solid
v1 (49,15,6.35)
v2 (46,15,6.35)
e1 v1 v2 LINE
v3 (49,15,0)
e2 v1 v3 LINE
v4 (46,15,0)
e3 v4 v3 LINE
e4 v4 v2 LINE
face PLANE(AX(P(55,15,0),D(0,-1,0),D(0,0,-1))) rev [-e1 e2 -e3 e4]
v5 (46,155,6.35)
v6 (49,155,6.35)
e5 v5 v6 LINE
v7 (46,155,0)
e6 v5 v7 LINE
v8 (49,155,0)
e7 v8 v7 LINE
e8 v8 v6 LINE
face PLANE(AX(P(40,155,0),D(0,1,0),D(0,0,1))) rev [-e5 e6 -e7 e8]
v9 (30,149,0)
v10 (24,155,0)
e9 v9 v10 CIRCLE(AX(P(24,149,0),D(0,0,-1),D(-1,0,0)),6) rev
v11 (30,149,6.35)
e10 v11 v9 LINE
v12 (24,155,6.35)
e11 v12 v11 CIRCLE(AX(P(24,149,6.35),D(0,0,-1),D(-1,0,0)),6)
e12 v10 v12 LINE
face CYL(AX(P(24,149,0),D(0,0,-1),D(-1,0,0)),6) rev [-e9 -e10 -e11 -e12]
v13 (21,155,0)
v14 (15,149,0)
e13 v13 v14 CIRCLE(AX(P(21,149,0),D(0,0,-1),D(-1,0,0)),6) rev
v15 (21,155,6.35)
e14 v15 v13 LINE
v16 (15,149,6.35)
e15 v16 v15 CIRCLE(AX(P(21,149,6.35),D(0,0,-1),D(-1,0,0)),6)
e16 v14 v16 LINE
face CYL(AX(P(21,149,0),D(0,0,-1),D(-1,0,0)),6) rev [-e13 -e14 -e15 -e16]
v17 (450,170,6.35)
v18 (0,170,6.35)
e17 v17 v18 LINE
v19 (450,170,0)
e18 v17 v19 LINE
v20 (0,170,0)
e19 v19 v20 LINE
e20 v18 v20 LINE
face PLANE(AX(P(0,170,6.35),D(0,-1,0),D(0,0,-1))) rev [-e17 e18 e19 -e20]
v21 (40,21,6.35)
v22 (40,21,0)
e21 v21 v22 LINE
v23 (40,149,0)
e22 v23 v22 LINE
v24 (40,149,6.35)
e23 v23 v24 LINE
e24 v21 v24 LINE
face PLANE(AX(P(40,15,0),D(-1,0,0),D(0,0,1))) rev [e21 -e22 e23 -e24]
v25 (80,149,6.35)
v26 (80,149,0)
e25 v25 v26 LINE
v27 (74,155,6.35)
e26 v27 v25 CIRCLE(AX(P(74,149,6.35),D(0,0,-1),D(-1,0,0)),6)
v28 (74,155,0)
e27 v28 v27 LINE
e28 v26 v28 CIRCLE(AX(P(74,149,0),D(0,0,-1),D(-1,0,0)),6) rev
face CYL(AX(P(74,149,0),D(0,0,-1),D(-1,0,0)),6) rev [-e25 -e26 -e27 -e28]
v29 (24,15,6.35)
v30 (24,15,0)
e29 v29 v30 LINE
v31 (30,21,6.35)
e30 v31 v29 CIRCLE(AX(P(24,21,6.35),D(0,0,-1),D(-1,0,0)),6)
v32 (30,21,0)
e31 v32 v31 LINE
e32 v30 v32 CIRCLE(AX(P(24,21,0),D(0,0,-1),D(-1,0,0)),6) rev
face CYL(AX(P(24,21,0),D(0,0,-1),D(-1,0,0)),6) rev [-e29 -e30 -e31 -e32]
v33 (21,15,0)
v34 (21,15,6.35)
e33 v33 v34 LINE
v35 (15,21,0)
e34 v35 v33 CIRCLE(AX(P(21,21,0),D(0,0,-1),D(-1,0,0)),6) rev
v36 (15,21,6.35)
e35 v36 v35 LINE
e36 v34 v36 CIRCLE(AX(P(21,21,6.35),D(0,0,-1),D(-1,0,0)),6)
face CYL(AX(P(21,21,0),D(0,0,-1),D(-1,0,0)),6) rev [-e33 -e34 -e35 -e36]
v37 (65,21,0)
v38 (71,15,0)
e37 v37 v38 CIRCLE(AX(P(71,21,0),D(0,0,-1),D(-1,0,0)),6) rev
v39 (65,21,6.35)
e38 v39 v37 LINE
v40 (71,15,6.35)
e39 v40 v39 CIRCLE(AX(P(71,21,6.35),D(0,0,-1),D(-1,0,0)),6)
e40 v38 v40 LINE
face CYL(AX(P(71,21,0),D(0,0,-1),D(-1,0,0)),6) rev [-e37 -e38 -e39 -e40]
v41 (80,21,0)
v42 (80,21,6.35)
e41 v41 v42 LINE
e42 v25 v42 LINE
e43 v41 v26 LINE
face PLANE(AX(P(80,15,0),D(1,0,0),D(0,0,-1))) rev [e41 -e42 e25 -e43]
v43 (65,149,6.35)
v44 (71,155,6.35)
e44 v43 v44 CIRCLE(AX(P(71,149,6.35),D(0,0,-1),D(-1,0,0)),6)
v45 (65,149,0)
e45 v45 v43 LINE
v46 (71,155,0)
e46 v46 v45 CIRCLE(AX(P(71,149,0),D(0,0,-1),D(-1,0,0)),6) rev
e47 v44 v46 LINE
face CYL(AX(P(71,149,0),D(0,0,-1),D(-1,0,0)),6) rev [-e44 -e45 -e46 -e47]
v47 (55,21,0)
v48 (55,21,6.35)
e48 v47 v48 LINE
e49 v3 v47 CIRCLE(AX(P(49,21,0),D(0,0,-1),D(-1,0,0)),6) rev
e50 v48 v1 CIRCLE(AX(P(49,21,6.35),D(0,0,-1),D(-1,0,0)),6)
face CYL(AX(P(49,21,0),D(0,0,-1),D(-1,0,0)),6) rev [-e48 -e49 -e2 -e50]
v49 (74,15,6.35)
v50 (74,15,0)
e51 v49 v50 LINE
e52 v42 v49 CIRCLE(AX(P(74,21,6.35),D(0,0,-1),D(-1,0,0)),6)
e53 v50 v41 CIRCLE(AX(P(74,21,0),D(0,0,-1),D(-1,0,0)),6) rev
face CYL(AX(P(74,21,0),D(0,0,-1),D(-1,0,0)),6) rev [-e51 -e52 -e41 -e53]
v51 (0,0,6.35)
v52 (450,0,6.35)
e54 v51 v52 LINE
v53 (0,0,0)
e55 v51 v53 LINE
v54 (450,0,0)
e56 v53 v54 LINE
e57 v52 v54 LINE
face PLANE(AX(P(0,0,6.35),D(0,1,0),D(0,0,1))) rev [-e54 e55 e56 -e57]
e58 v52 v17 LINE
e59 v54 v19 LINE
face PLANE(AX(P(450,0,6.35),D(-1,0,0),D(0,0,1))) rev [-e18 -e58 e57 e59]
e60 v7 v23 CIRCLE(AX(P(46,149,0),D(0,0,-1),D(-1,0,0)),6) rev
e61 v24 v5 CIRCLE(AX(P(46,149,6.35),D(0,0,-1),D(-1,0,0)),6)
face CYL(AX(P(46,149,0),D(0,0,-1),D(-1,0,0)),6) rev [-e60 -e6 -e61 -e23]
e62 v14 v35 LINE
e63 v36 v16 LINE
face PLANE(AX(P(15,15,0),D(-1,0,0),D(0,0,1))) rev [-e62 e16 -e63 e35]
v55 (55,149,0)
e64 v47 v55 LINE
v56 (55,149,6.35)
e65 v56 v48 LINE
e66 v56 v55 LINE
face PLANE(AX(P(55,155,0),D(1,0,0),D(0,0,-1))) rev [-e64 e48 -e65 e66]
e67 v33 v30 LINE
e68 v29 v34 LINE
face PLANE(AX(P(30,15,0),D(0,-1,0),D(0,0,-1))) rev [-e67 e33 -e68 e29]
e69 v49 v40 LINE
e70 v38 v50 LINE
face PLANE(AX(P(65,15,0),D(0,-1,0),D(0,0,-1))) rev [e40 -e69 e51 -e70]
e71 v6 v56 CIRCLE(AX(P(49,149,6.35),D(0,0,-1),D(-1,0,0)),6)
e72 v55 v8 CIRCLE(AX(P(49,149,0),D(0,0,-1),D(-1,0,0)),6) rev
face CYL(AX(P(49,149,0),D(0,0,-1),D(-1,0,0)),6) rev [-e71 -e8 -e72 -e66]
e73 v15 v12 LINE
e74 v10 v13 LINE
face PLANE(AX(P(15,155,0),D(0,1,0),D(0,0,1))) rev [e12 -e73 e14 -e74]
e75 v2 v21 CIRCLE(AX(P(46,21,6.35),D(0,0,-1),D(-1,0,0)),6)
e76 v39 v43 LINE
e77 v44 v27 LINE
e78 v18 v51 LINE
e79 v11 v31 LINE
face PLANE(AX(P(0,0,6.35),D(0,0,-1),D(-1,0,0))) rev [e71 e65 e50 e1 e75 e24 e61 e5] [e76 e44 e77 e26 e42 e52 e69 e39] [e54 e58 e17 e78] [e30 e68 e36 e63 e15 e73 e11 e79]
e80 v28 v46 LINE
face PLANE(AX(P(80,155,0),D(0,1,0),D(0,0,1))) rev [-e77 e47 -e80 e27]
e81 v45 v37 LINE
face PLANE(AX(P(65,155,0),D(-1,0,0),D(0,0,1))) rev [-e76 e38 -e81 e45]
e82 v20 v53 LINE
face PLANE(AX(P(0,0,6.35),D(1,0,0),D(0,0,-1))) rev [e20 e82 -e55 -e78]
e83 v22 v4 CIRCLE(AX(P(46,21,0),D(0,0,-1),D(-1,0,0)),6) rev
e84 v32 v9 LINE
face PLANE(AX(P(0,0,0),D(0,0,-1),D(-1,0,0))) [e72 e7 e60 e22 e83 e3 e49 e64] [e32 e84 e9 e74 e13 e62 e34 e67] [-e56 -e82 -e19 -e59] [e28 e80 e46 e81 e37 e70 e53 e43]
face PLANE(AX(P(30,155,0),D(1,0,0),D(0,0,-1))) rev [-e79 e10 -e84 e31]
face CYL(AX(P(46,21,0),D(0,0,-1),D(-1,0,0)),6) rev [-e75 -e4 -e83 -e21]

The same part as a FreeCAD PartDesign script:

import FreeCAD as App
import Part
import Sketcher
from FreeCAD import Vector
Q = App.Units.Quantity


def edges_at(feature, points):
    """Names of the edges that pass closest to the given points."""
    edges = feature.Shape.Edges
    near = lambda p: min(range(len(edges)), key=lambda i: edges[i].distToShape(Part.Vertex(*p))[0])
    return sorted({f"Edge{near(p) + 1}" for p in points})


def add_polygon(sketch, points):
    """Adds a closed chain of lines whose ends are joined by coincident constraints."""
    first, n = sketch.GeometryCount, len(points)
    for a, b in zip(points, points[1:] + points[:1]):
        sketch.addGeometry(Part.LineSegment(App.Vector(*a, 0), App.Vector(*b, 0)), False)
    for i in range(n):
        sketch.addConstraint(Sketcher.Constraint("Coincident", first + i, 2, first + (i + 1) % n, 1))

doc = App.newDocument("Part")
params = doc.addObject("Spreadsheet::Sheet", "Params")
for row, (alias, value) in enumerate([
    ("sketch1_width", "450 mm"),
    ("sketch1_height", "170 mm"),
    ("pad1_length", "6.35 mm"),
    ("sketch2_width", "15 mm"),
    ("sketch2_height", "140 mm"),
    ("fillet_radius", "6 mm"),
    ("fillet2_radius", "6 mm"),
], start=1):
    params.set(f"A{row}", alias)
    params.set(f"B{row}", "=" + value)
    params.setAlias(f"B{row}", alias)

body = doc.addObject("PartDesign::Body", "Body")

# Sketch on XY plane
sketch1 = doc.addObject("Sketcher::SketchObject", "Sketch")
body.addObject(sketch1)
sketch1.AttachmentSupport = (doc.XY_Plane, [""])
sketch1.MapMode = "FlatFace"
add_polygon(sketch1, [(0, 170), (0, 0), (450, 0), (450, 170)])  # lines 0-3
sketch1.addConstraint(Sketcher.Constraint("Vertical", 0))
sketch1.addConstraint(Sketcher.Constraint("Horizontal", 1))
sketch1.addConstraint(Sketcher.Constraint("Vertical", 2))
sketch1.addConstraint(Sketcher.Constraint("Horizontal", 3))
sketch1.addConstraint(Sketcher.Constraint("Coincident", 0, 2, -1, 1))
sketch1.addConstraint(Sketcher.Constraint("DistanceX", 1, 1, 1, 2, Q("450 mm")))
sketch1.addConstraint(Sketcher.Constraint("DistanceY", 0, 2, 0, 1, Q("170 mm")))
sketch1.setExpression("Constraints[9]", "Params.sketch1_width")
sketch1.setExpression("Constraints[10]", "Params.sketch1_height")
pad1 = doc.addObject("PartDesign::Pad", "Pad")
body.addObject(pad1)
pad1.Profile = sketch1
pad1.setExpression("Length", "Params.pad1_length")

# Sketch on XY plane
sketch2 = doc.addObject("Sketcher::SketchObject", "Sketch001")
body.addObject(sketch2)
sketch2.AttachmentSupport = (doc.XY_Plane, [""])
sketch2.MapMode = "FlatFace"
sketch2.AttachmentOffset = App.Placement(Vector(0, 0, 6.35), App.Rotation())
add_polygon(sketch2, [(15, 155), (15, 15), (30, 15), (30, 155)])  # lines 0-3
add_polygon(sketch2, [(40, 155), (40, 15), (55, 15), (55, 155)])  # lines 4-7
add_polygon(sketch2, [(65, 155), (65, 15), (80, 15), (80, 155)])  # lines 8-11
sketch2.addConstraint(Sketcher.Constraint("Vertical", 0))
sketch2.addConstraint(Sketcher.Constraint("Horizontal", 1))
sketch2.addConstraint(Sketcher.Constraint("Vertical", 2))
sketch2.addConstraint(Sketcher.Constraint("Horizontal", 3))
sketch2.addConstraint(Sketcher.Constraint("Vertical", 4))
sketch2.addConstraint(Sketcher.Constraint("Horizontal", 5))
sketch2.addConstraint(Sketcher.Constraint("Vertical", 6))
sketch2.addConstraint(Sketcher.Constraint("Horizontal", 7))
sketch2.addConstraint(Sketcher.Constraint("Vertical", 8))
sketch2.addConstraint(Sketcher.Constraint("Horizontal", 9))
sketch2.addConstraint(Sketcher.Constraint("Vertical", 10))
sketch2.addConstraint(Sketcher.Constraint("Horizontal", 11))
sketch2.addConstraint(Sketcher.Constraint("Horizontal", 1, 2, 4, 2))
sketch2.addConstraint(Sketcher.Constraint("Horizontal", 3, 2, 6, 2))
sketch2.addConstraint(Sketcher.Constraint("Horizontal", 5, 2, 8, 2))
sketch2.addConstraint(Sketcher.Constraint("Horizontal", 7, 2, 10, 2))
sketch2.addConstraint(Sketcher.Constraint("Equal", 3, 5))
sketch2.addConstraint(Sketcher.Constraint("Equal", 7, 9))
sketch2.addConstraint(Sketcher.Constraint("DistanceX", 1, 1, 1, 2, Q("15 mm")))
sketch2.addConstraint(Sketcher.Constraint("DistanceY", 0, 2, 0, 1, Q("140 mm")))
sketch2.addConstraint(Sketcher.Constraint("DistanceX", -1, 1, 0, 2, Q("15 mm")))
sketch2.addConstraint(Sketcher.Constraint("DistanceY", -1, 1, 0, 2, Q("15 mm")))
sketch2.addConstraint(Sketcher.Constraint("DistanceX", -1, 1, 4, 2, Q("40 mm")))
sketch2.addConstraint(Sketcher.Constraint("DistanceX", -1, 1, 8, 2, Q("65 mm")))
sketch2.setExpression("Constraints[30]", "Params.sketch2_width")
sketch2.setExpression("Constraints[31]", "Params.sketch2_height")
pocket1 = doc.addObject("PartDesign::Pocket", "Pocket")
body.addObject(pocket1)
pocket1.Profile = sketch2
pocket1.Type = "ThroughAll"
pocket1.Midplane = True
doc.recompute()

fillet = doc.addObject("PartDesign::Fillet", "Fillet")
body.addObject(fillet)
fillet.Base = (pocket1, edges_at(pocket1, [
    (15, 155, 3.175),
    (30, 155, 3.175),
    (40, 155, 3.175),
    (55, 155, 3.175),
    (80, 155, 3.175),
    (65, 155, 3.175),
]))
fillet.setExpression("Radius", "Params.fillet_radius")
doc.recompute()

fillet2 = doc.addObject("PartDesign::Fillet", "Fillet001")
body.addObject(fillet2)
fillet2.Base = (fillet, edges_at(fillet, [
    (30, 15, 3.175),
    (15, 15, 3.175),
    (55, 15, 3.175),
    (40, 15, 3.175),
    (80, 15, 3.175),
    (65, 15, 3.175),
]))
fillet2.setExpression("Radius", "Params.fillet2_radius")

doc.recompute()
